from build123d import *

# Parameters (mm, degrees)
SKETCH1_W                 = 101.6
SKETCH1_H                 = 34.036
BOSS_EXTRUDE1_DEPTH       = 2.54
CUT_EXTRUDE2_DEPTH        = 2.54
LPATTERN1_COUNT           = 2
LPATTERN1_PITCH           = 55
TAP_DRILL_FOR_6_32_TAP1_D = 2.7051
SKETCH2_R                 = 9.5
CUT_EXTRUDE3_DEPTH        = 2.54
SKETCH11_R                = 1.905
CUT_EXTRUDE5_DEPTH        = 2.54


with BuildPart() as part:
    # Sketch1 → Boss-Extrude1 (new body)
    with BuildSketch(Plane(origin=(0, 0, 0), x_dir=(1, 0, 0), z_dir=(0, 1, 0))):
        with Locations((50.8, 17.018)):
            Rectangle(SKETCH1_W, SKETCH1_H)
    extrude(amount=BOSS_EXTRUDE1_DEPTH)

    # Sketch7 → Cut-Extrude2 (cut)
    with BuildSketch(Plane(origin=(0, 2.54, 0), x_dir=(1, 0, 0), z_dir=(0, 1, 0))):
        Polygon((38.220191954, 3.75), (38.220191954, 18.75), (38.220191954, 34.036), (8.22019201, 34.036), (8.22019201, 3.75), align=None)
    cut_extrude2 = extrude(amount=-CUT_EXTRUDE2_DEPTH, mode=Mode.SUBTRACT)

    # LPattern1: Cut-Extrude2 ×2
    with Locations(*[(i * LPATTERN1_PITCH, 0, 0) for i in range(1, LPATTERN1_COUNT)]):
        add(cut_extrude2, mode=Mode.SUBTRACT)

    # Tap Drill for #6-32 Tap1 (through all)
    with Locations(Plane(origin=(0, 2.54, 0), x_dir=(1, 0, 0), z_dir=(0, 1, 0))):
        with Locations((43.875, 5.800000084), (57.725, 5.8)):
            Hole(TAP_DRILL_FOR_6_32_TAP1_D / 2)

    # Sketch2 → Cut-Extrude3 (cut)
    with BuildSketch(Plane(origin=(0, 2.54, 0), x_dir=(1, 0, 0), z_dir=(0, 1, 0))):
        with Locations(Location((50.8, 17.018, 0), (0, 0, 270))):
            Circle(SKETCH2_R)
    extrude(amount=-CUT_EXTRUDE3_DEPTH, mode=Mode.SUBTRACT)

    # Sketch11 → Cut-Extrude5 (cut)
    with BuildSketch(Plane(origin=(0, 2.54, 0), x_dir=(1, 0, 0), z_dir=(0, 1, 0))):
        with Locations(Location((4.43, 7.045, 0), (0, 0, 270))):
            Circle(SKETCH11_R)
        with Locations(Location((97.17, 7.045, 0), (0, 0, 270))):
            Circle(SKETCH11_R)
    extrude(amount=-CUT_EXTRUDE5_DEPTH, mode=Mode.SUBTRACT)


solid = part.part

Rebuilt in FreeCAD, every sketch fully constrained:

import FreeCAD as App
import Part
import Sketcher
Q = App.Units.Quantity

doc = App.newDocument("Part")
params = doc.addObject("Spreadsheet::Sheet", "Params")
for row, (alias, value) in enumerate([
    ("sketch1_width", "4 in"),
    ("sketch1_height", "1.34 in"),
    ("pad1_length", "0.1 in"),
    ("pocket1_length", "0.1 in"),
    ("linearpattern_pitch", "55 mm"),
    ("hole_diameter", "0.1065 in"),
    ("pocket2_length", "0.1 in"),
    ("sketch5_diameter", "0.15 in"),
    ("pocket3_length", "0.1 in"),
], start=1):
    params.set(f"A{row}", alias)
    params.set(f"B{row}", "=" + value)
    params.setAlias(f"B{row}", alias)

body = doc.addObject("PartDesign::Body", "Body")

# Sketch on XZ plane
sketch1 = body.newObject("Sketcher::SketchObject", "Sketch")
sketch1.AttachmentSupport = (doc.getObject("XZ_Plane"), [""])
sketch1.MapMode = "FlatFace"
sketch1.addGeometry([
    Part.LineSegment(App.Vector(0, -34.036, 0), App.Vector(0, 0, 0)),
    Part.LineSegment(App.Vector(0, 0, 0), App.Vector(101.6, 0, 0)),
    Part.LineSegment(App.Vector(101.6, 0, 0), App.Vector(101.6, -34.036, 0)),
    Part.LineSegment(App.Vector(101.6, -34.036, 0), App.Vector(0, -34.036, 0)),
], False)
sketch1.addConstraint([
    Sketcher.Constraint("Coincident", 0, 2, 1, 1),
    Sketcher.Constraint("Coincident", 1, 2, 2, 1),
    Sketcher.Constraint("Coincident", 2, 2, 3, 1),
    Sketcher.Constraint("Coincident", 3, 2, 0, 1),
    Sketcher.Constraint("Vertical", 0),
    Sketcher.Constraint("Horizontal", 1),
    Sketcher.Constraint("Vertical", 2),
    Sketcher.Constraint("Horizontal", 3),
    Sketcher.Constraint("Coincident", 0, 2, -1, 1),
    Sketcher.Constraint("DistanceX", 1, 1, 1, 2, Q("4 in")),
    Sketcher.Constraint("DistanceY", 0, 1, 0, 2, Q("1.34 in")),
])
sketch1.setExpression("Constraints[9]", "Params.sketch1_width")
sketch1.setExpression("Constraints[10]", "Params.sketch1_height")
pad1 = body.newObject("PartDesign::Pad", "Pad")
pad1.Profile = sketch1
pad1.setExpression("Length", "Params.pad1_length")
pad1.Reversed = True

# Sketch on XZ plane
sketch2 = body.newObject("Sketcher::SketchObject", "Sketch001")
sketch2.AttachmentSupport = (doc.getObject("XZ_Plane"), [""])
sketch2.MapMode = "FlatFace"
sketch2.AttachmentOffset = App.Placement(App.Vector(0, 0, -0.1 * 25.4), App.Rotation())
sketch2.addGeometry([
    Part.LineSegment(App.Vector(38.220192, -3.75, 0), App.Vector(38.220192, -34.036, 0)),
    Part.LineSegment(App.Vector(38.220192, -34.036, 0), App.Vector(8.220192, -34.036, 0)),
    Part.LineSegment(App.Vector(8.220192, -34.036, 0), App.Vector(8.220192, -3.75, 0)),
    Part.LineSegment(App.Vector(8.220192, -3.75, 0), App.Vector(38.220192, -3.75, 0)),
], False)
sketch2.addConstraint([
    Sketcher.Constraint("Coincident", 0, 2, 1, 1),
    Sketcher.Constraint("Coincident", 1, 2, 2, 1),
    Sketcher.Constraint("Coincident", 2, 2, 3, 1),
    Sketcher.Constraint("Coincident", 3, 2, 0, 1),
    Sketcher.Constraint("Vertical", 0),
    Sketcher.Constraint("Horizontal", 1),
    Sketcher.Constraint("Vertical", 2),
    Sketcher.Constraint("Horizontal", 3),
    Sketcher.Constraint("DistanceY", 0, 2, -1, 1, Q("1.34 in")),
    Sketcher.Constraint("DistanceX", 1, 2, 1, 1, 30.0),
    Sketcher.Constraint("DistanceY", 0, 2, 0, 1, 30.286),
    Sketcher.Constraint("DistanceX", -1, 1, 0, 2, 38.220192),
])
pocket1 = body.newObject("PartDesign::Pocket", "Pocket")
pocket1.Profile = sketch2
pocket1.setExpression("Length", "Params.pocket1_length")
pocket1.Reversed = True
doc.recompute()

linearpattern = body.newObject("PartDesign::LinearPattern", "LinearPattern")
linearpattern.Originals = [pocket1]
linearpattern.Direction = (doc.getObject("X_Axis"), [""])
linearpattern.Mode = "offset"
linearpattern.setExpression("Offset", "Params.linearpattern_pitch")
linearpattern.Occurrences = 2
body.Tip = linearpattern

# Sketch on XZ plane
sketch3 = body.newObject("Sketcher::SketchObject", "Sketch002")
sketch3.AttachmentSupport = (doc.getObject("XZ_Plane"), [""])
sketch3.MapMode = "FlatFace"
sketch3.AttachmentOffset = App.Placement(App.Vector(0, 0, -0.1 * 25.4), App.Rotation())
sketch3.addGeometry([
    Part.Circle(App.Vector(43.875, -5.8, 0), App.Vector(0, 0, 1), 1.35255),
    Part.Circle(App.Vector(57.725, -5.8, 0), App.Vector(0, 0, 1), 1.35255),
], False)
sketch3.addConstraint([
    Sketcher.Constraint("Equal", 0, 1),
    Sketcher.Constraint("Horizontal", 0, 3, 1, 3),
    Sketcher.Constraint("Diameter", 0, Q("0.1065 in")),
    Sketcher.Constraint("DistanceX", -1, 1, 0, 3, 43.875),
    Sketcher.Constraint("DistanceY", 0, 3, -1, 1, 5.8),
    Sketcher.Constraint("DistanceX", -1, 1, 1, 3, 57.725),
])
doc.recompute()
hole = body.newObject("PartDesign::Hole", "Hole")
hole.Profile = sketch3
hole.ThreadType = "None"
hole.setExpression("Diameter", "Params.hole_diameter")
hole.DepthType = "ThroughAll"
hole.Reversed = True

# Sketch on XZ plane
sketch4 = body.newObject("Sketcher::SketchObject", "Sketch003")
sketch4.AttachmentSupport = (doc.getObject("XZ_Plane"), [""])
sketch4.MapMode = "FlatFace"
sketch4.AttachmentOffset = App.Placement(App.Vector(0, 0, -0.1 * 25.4), App.Rotation())
sketch4.addGeometry(Part.Circle(App.Vector(50.8, -17.018, 0), App.Vector(0, 0, 1), 9.5), False)
sketch4.addConstraint([
    Sketcher.Constraint("DistanceX", -1, 1, 0, 3, Q("2 in")),
    Sketcher.Constraint("Diameter", 0, 19.0),
    Sketcher.Constraint("DistanceY", 0, 3, -1, 1, Q("0.67 in")),
])
pocket2 = body.newObject("PartDesign::Pocket", "Pocket001")
pocket2.Profile = sketch4
pocket2.setExpression("Length", "Params.pocket2_length")
pocket2.Reversed = True

# Sketch on XZ plane
sketch5 = body.newObject("Sketcher::SketchObject", "Sketch004")
sketch5.AttachmentSupport = (doc.getObject("XZ_Plane"), [""])
sketch5.MapMode = "FlatFace"
sketch5.AttachmentOffset = App.Placement(App.Vector(0, 0, -0.1 * 25.4), App.Rotation())
sketch5.addGeometry([
    Part.Circle(App.Vector(4.43, -7.045, 0), App.Vector(0, 0, 1), 1.905),
    Part.Circle(App.Vector(97.17, -7.045, 0), App.Vector(0, 0, 1), 1.905),
], False)
sketch5.addConstraint([
    Sketcher.Constraint("Equal", 0, 1),
    Sketcher.Constraint("Horizontal", 0, 3, 1, 3),
    Sketcher.Constraint("Diameter", 0, Q("0.15 in")),
    Sketcher.Constraint("DistanceX", -1, 1, 0, 3, 4.43),
    Sketcher.Constraint("DistanceY", 0, 3, -1, 1, 7.045),
    Sketcher.Constraint("DistanceX", -1, 1, 1, 3, 97.17),
])
sketch5.setExpression("Constraints[2]", "Params.sketch5_diameter")
pocket3 = body.newObject("PartDesign::Pocket", "Pocket002")
pocket3.Profile = sketch5
pocket3.setExpression("Length", "Params.pocket3_length")
pocket3.Reversed = True

doc.recompute()
